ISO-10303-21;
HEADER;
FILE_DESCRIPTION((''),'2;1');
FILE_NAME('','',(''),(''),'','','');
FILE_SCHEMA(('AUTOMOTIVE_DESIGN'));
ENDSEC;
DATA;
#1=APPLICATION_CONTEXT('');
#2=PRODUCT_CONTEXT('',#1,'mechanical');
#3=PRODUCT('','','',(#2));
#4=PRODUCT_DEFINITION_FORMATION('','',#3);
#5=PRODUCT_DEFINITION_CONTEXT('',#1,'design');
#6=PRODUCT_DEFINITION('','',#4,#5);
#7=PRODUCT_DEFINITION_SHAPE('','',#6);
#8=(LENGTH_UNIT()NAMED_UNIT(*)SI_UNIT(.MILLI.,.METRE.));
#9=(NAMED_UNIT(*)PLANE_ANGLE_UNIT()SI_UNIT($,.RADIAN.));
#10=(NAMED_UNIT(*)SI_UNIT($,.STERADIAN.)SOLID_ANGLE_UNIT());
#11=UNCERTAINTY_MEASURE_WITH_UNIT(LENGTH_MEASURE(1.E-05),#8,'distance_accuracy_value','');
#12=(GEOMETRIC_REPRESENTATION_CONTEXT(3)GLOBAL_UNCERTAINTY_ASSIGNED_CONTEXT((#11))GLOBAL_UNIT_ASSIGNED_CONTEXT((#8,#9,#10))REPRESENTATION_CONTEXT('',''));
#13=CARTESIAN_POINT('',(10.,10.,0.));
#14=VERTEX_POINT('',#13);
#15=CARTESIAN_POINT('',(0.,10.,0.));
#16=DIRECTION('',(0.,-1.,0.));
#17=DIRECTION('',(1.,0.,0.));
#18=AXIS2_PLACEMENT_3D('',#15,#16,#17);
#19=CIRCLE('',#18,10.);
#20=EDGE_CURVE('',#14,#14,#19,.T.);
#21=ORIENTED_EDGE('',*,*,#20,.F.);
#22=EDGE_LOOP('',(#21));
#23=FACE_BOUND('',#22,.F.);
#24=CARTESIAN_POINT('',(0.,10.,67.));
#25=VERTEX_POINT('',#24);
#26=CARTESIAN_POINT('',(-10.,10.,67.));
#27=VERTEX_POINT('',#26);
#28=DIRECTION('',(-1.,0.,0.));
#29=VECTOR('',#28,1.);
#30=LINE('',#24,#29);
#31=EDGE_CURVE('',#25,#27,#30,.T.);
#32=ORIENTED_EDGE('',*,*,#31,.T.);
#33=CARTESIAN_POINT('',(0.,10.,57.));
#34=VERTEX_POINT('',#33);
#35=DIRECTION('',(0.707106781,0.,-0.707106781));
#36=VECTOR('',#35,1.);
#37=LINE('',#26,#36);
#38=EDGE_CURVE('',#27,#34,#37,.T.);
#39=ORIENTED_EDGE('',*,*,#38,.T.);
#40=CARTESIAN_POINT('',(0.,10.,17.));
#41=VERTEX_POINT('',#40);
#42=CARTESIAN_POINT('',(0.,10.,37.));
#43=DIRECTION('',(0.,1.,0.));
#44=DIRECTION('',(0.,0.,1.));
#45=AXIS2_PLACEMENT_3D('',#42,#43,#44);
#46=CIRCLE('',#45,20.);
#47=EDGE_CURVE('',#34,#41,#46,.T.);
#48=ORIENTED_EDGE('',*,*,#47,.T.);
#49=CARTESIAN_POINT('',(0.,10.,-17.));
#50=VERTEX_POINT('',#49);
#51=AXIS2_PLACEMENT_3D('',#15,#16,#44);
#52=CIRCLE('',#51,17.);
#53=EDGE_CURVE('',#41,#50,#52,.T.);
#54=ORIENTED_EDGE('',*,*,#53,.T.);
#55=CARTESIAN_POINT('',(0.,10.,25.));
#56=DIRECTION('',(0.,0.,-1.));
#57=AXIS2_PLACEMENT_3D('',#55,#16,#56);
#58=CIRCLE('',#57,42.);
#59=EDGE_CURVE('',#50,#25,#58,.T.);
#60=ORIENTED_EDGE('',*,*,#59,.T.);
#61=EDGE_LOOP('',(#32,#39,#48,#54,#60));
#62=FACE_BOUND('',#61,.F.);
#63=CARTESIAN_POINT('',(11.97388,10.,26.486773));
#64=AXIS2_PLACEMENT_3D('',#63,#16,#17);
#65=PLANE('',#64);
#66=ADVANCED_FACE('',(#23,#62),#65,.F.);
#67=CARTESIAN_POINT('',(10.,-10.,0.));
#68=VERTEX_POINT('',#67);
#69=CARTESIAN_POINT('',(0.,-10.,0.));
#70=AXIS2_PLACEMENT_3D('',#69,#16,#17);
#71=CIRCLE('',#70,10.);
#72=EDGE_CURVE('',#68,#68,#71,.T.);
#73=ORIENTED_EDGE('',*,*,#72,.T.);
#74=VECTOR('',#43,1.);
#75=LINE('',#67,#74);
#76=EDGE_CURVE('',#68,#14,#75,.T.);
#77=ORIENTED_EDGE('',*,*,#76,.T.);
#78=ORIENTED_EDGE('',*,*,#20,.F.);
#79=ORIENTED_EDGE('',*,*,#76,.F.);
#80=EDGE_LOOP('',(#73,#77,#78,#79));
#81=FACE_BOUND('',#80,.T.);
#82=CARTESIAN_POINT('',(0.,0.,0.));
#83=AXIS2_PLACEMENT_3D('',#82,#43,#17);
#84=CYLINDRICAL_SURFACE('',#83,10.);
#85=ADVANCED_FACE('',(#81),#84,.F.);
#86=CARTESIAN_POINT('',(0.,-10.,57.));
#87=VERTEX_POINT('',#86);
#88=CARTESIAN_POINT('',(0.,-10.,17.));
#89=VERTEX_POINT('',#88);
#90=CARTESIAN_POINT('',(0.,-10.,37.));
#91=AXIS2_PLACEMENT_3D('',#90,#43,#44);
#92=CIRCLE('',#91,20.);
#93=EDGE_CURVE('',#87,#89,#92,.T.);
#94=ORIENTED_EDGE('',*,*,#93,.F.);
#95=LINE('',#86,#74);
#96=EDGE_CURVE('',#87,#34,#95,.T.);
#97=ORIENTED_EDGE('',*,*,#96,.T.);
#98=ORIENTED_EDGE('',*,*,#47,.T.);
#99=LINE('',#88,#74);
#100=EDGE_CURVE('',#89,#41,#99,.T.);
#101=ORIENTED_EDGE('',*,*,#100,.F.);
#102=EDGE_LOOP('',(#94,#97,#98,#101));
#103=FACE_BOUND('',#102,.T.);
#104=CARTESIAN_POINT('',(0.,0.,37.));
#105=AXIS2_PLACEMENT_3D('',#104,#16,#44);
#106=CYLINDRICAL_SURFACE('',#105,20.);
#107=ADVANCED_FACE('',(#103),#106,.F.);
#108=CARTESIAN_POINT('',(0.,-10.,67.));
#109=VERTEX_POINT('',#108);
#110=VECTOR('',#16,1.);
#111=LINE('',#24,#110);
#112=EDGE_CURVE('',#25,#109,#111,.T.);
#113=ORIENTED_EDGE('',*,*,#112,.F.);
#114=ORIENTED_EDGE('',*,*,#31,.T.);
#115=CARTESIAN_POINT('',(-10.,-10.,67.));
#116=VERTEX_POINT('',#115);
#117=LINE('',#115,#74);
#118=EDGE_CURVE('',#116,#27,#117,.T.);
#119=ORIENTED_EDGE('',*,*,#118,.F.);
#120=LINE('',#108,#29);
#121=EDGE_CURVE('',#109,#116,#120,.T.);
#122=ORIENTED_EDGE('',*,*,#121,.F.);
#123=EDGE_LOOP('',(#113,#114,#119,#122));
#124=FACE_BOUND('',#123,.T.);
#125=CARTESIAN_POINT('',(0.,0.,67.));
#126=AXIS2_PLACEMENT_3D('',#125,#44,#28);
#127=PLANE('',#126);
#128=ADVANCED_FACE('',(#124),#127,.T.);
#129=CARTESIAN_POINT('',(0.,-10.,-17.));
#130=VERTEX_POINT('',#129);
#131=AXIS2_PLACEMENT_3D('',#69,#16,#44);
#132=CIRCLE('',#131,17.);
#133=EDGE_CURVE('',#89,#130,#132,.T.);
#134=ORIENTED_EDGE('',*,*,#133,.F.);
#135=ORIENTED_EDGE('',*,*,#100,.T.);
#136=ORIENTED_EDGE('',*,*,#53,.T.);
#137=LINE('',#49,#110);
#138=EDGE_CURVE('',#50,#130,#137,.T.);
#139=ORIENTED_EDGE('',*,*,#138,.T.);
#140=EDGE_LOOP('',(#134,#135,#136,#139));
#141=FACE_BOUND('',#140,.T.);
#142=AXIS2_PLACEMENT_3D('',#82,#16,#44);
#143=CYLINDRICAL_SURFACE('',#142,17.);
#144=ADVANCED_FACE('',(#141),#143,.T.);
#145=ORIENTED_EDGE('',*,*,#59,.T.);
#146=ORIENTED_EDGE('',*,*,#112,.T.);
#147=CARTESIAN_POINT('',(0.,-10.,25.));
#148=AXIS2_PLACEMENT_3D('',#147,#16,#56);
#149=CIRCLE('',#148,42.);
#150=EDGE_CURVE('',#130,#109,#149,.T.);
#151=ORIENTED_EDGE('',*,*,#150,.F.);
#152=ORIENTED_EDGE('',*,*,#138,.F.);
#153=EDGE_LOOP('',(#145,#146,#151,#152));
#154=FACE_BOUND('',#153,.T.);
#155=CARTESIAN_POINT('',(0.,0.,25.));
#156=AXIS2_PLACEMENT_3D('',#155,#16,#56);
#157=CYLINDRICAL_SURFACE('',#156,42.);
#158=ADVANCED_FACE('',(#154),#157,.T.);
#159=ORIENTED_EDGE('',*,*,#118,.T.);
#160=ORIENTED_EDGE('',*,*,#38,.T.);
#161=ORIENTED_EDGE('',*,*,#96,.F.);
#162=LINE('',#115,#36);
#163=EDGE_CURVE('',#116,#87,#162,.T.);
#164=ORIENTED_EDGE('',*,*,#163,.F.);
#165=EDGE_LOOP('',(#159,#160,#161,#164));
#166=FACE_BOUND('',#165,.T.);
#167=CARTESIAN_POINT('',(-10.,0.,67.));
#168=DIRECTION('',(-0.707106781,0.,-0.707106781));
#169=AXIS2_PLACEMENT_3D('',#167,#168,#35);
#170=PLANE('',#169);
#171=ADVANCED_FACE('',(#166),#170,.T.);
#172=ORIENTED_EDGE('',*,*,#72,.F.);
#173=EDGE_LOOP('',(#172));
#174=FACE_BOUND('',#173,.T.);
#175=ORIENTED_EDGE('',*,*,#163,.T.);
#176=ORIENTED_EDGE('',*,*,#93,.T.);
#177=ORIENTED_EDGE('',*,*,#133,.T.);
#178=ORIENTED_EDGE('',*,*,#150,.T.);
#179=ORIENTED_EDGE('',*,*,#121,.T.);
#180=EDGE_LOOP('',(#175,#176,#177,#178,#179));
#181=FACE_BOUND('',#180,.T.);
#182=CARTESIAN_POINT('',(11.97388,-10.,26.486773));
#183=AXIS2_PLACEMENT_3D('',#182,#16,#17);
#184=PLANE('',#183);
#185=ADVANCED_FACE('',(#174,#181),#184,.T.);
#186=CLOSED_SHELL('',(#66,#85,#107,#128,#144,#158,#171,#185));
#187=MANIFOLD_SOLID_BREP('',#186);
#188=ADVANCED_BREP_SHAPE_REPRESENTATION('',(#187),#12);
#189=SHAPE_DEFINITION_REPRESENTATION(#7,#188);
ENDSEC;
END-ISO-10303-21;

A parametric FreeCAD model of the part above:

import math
import FreeCAD as App
import Part
import Sketcher

doc = App.newDocument("Part")
body = doc.addObject("PartDesign::Body", "Body")

# Sketch on XZ plane
sketch1 = body.newObject("Sketcher::SketchObject", "Sketch")
sketch1.AttachmentSupport = (doc.getObject("XZ_Plane"), [""])
sketch1.MapMode = "FlatFace"
sketch1.addGeometry(Part.ArcOfCircle(Part.Circle(App.Vector(0, 0, 0), App.Vector(0, 0, 1), 17), math.radians(90), math.radians(270)), False)
sketch1.addGeometry(Part.ArcOfCircle(Part.Circle(App.Vector(0, 25, 0), App.Vector(0, 0, 1), 42), math.radians(-90), math.radians(90)), False)
sketch1.addGeometry(Part.LineSegment(App.Vector(0, 67, 0), App.Vector(-10, 67, 0)), False)
sketch1.addGeometry(Part.LineSegment(App.Vector(-10, 67, 0), App.Vector(0, 57, 0)), False)
sketch1.addGeometry(Part.ArcOfCircle(Part.Circle(App.Vector(0, 37, 0), App.Vector(0, 0, 1), 20), math.radians(-90), math.radians(90)), False)
sketch1.addGeometry(Part.Circle(App.Vector(0, 0, 0), App.Vector(0, 0, 1), 10), False)
sketch1.addConstraint(Sketcher.Constraint("Tangent", 0, 2, 1, 1))
sketch1.addConstraint(Sketcher.Constraint("Tangent", 1, 2, 2, 1))
sketch1.addConstraint(Sketcher.Constraint("Coincident", 2, 2, 3, 1))
sketch1.addConstraint(Sketcher.Constraint("Coincident", 3, 2, 4, 2))
sketch1.addConstraint(Sketcher.Constraint("Tangent", 4, 1, 0, 1))
sketch1.addConstraint(Sketcher.Constraint("Horizontal", 2))
sketch1.addConstraint(Sketcher.Constraint("Coincident", 0, 3, -1, 1))
sketch1.addConstraint(Sketcher.Constraint("Coincident", 5, 3, -1, 1))
sketch1.addConstraint(Sketcher.Constraint("PointOnObject", 1, 3, -2))
sketch1.addConstraint(Sketcher.Constraint("PointOnObject", 4, 3, -2))
sketch1.addConstraint(Sketcher.Constraint("PointOnObject", 3, 2, -2))
sketch1.addConstraint(Sketcher.Constraint("Diameter", 5, 20.0))
sketch1.addConstraint(Sketcher.Constraint("Radius", 0, 17.0))
sketch1.addConstraint(Sketcher.Constraint("Radius", 1, 42.0))
sketch1.addConstraint(Sketcher.Constraint("Radius", 4, 20.0))
sketch1.addConstraint(Sketcher.Constraint("DistanceX", 2, 2, 2, 1, 10.0))
pad1 = body.newObject("PartDesign::Pad", "Pad")
pad1.Profile = sketch1
pad1.Length = 20
pad1.Midplane = True

doc.recompute()
